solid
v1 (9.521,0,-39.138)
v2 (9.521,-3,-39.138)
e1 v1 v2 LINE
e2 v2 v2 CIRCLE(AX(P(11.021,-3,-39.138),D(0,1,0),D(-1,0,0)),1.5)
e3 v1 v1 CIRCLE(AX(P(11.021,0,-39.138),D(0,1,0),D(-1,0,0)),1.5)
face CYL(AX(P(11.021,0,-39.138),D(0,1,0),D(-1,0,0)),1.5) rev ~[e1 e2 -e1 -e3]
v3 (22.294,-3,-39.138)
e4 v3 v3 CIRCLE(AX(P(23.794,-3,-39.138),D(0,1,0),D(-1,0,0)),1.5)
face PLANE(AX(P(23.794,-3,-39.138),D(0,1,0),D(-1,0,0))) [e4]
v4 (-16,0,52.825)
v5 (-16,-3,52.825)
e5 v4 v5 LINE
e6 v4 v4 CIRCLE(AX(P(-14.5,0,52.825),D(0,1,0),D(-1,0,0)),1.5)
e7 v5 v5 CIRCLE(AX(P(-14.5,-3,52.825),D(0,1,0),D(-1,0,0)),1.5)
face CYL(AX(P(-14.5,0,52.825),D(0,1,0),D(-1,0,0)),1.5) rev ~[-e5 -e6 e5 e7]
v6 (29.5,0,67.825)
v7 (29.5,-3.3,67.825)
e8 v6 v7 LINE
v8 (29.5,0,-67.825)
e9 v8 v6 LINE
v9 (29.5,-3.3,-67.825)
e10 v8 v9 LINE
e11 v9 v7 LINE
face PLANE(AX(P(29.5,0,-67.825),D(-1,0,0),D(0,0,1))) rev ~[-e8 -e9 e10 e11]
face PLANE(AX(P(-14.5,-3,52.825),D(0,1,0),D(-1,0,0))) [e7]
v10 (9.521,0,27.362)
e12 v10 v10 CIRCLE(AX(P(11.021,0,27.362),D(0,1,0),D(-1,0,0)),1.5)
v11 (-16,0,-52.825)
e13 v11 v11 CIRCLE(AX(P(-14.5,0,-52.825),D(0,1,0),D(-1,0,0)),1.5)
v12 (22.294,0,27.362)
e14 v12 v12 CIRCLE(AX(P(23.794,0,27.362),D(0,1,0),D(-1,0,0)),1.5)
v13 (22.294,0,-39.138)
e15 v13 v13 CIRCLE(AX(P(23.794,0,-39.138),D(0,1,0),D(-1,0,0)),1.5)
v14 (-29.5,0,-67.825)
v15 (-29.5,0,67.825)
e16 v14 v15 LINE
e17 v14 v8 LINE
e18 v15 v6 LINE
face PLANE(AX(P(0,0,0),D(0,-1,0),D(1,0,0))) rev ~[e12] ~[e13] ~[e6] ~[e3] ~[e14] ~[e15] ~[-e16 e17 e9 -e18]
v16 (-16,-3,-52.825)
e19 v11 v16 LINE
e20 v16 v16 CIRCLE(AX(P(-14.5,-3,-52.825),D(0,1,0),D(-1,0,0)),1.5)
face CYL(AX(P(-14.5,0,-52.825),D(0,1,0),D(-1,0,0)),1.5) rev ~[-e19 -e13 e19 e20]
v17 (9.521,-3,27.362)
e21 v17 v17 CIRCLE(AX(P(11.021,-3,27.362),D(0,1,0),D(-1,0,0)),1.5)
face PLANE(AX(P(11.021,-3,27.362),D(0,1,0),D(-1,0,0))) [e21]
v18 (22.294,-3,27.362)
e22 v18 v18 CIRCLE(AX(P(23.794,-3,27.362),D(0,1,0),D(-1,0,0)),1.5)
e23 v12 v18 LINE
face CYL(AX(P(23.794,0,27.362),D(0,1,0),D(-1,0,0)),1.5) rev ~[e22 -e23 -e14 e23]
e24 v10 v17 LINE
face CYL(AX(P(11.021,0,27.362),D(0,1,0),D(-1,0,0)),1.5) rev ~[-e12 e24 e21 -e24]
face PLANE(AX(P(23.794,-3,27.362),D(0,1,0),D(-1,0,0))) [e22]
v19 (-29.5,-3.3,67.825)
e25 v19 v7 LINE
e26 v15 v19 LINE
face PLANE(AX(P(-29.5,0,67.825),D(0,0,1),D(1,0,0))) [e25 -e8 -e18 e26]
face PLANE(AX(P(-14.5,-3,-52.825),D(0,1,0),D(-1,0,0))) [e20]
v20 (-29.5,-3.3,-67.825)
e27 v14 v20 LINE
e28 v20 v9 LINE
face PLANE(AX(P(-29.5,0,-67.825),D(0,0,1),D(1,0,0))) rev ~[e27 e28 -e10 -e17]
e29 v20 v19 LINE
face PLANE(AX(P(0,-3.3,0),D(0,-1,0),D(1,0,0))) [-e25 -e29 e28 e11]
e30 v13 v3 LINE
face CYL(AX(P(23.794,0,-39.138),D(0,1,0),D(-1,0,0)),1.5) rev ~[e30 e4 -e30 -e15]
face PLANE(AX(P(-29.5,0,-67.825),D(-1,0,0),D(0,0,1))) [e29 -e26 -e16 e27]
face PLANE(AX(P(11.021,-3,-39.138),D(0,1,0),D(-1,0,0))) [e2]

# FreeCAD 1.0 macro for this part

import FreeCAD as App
import Part
import Sketcher


def add_polygon(sketch, points):
    """Adds a closed chain of lines whose ends are joined by coincident constraints."""
    first, n = sketch.GeometryCount, len(points)
    for a, b in zip(points, points[1:] + points[:1]):
        sketch.addGeometry(Part.LineSegment(App.Vector(*a, 0), App.Vector(*b, 0)), False)
    for i in range(n):
        sketch.addConstraint(Sketcher.Constraint("Coincident", first + i, 2, first + (i + 1) % n, 1))

doc = App.newDocument("Part")
body = doc.addObject("PartDesign::Body", "Body")

# Sketch on XZ plane
sketch1 = body.newObject("Sketcher::SketchObject", "Sketch")
sketch1.AttachmentSupport = (doc.getObject("XZ_Plane"), [""])
sketch1.MapMode = "FlatFace"
add_polygon(sketch1, [(-30, 68), (-30, -68), (30, -68), (30, 68)])  # lines 0-3
sketch1.addConstraint([
    Sketcher.Constraint("Vertical", 0),
    Sketcher.Constraint("Horizontal", 1),
    Sketcher.Constraint("Vertical", 2),
    Sketcher.Constraint("Horizontal", 3),
    Sketcher.Constraint("Symmetric", 0, 2, 2, 2, -1, 1),
    Sketcher.Constraint("DistanceX", 1, 1, 1, 2, 59.0),
    Sketcher.Constraint("DistanceY", 0, 2, 0, 1, 135.65),
])
pad1 = body.newObject("PartDesign::Pad", "Pad")
pad1.Profile = sketch1
pad1.Length = 3.3

# Sketch on XZ plane
sketch2 = body.newObject("Sketcher::SketchObject", "Sketch001")
sketch2.AttachmentSupport = (doc.getObject("XZ_Plane"), [""])
sketch2.MapMode = "FlatFace"
sketch2.addGeometry([
    Part.Circle(App.Vector(-14.5, 52.8, 0), App.Vector(0, 0, 1), 1.5),
    Part.Circle(App.Vector(-14.5, -52.8, 0), App.Vector(0, 0, 1), 1.5),
], False)
sketch2.addConstraint([
    Sketcher.Constraint("Equal", 0, 1),
    Sketcher.Constraint("Symmetric", 0, 3, 1, 3, -1),
    Sketcher.Constraint("Diameter", 0, 3.0),
    Sketcher.Constraint("DistanceX", 0, 3, -1, 1, 14.5),
    Sketcher.Constraint("DistanceY", 1, 3, 0, 3, 105.65),
])
pocket1 = body.newObject("PartDesign::Pocket", "Pocket")
pocket1.Profile = sketch2
pocket1.Length = 3
pocket1.Reversed = True

# Sketch on XZ plane
sketch3 = body.newObject("Sketcher::SketchObject", "Sketch002")
sketch3.AttachmentSupport = (doc.getObject("XZ_Plane"), [""])
sketch3.MapMode = "FlatFace"
sketch3.addGeometry([
    Part.Circle(App.Vector(23.8, 27.4, 0), App.Vector(0, 0, 1), 1.5),
    Part.Circle(App.Vector(11, 27.4, 0), App.Vector(0, 0, 1), 1.5),
    Part.Circle(App.Vector(23.8, -39.1, 0), App.Vector(0, 0, 1), 1.5),
    Part.Circle(App.Vector(11, -39.1, 0), App.Vector(0, 0, 1), 1.5),
], False)
sketch3.addConstraint([
    Sketcher.Constraint("Equal", 0, 1),
    Sketcher.Constraint("Equal", 1, 2),
    Sketcher.Constraint("Equal", 2, 3),
    Sketcher.Constraint("Horizontal", 0, 3, 1, 3),
    Sketcher.Constraint("Horizontal", 2, 3, 3, 3),
    Sketcher.Constraint("Vertical", 0, 3, 2, 3),
    Sketcher.Constraint("Vertical", 1, 3, 3, 3),
    Sketcher.Constraint("Diameter", 0, 3.0),
    Sketcher.Constraint("DistanceY", 2, 3, 0, 3, 66.5),
    Sketcher.Constraint("DistanceX", -1, 1, 0, 3, 23.794),
    Sketcher.Constraint("DistanceY", -1, 1, 0, 3, 27.362),
    Sketcher.Constraint("DistanceX", -1, 1, 1, 3, 11.021),
])
pocket2 = body.newObject("PartDesign::Pocket", "Pocket001")
pocket2.Profile = sketch3
pocket2.Length = 3
pocket2.Reversed = True

doc.recompute()
